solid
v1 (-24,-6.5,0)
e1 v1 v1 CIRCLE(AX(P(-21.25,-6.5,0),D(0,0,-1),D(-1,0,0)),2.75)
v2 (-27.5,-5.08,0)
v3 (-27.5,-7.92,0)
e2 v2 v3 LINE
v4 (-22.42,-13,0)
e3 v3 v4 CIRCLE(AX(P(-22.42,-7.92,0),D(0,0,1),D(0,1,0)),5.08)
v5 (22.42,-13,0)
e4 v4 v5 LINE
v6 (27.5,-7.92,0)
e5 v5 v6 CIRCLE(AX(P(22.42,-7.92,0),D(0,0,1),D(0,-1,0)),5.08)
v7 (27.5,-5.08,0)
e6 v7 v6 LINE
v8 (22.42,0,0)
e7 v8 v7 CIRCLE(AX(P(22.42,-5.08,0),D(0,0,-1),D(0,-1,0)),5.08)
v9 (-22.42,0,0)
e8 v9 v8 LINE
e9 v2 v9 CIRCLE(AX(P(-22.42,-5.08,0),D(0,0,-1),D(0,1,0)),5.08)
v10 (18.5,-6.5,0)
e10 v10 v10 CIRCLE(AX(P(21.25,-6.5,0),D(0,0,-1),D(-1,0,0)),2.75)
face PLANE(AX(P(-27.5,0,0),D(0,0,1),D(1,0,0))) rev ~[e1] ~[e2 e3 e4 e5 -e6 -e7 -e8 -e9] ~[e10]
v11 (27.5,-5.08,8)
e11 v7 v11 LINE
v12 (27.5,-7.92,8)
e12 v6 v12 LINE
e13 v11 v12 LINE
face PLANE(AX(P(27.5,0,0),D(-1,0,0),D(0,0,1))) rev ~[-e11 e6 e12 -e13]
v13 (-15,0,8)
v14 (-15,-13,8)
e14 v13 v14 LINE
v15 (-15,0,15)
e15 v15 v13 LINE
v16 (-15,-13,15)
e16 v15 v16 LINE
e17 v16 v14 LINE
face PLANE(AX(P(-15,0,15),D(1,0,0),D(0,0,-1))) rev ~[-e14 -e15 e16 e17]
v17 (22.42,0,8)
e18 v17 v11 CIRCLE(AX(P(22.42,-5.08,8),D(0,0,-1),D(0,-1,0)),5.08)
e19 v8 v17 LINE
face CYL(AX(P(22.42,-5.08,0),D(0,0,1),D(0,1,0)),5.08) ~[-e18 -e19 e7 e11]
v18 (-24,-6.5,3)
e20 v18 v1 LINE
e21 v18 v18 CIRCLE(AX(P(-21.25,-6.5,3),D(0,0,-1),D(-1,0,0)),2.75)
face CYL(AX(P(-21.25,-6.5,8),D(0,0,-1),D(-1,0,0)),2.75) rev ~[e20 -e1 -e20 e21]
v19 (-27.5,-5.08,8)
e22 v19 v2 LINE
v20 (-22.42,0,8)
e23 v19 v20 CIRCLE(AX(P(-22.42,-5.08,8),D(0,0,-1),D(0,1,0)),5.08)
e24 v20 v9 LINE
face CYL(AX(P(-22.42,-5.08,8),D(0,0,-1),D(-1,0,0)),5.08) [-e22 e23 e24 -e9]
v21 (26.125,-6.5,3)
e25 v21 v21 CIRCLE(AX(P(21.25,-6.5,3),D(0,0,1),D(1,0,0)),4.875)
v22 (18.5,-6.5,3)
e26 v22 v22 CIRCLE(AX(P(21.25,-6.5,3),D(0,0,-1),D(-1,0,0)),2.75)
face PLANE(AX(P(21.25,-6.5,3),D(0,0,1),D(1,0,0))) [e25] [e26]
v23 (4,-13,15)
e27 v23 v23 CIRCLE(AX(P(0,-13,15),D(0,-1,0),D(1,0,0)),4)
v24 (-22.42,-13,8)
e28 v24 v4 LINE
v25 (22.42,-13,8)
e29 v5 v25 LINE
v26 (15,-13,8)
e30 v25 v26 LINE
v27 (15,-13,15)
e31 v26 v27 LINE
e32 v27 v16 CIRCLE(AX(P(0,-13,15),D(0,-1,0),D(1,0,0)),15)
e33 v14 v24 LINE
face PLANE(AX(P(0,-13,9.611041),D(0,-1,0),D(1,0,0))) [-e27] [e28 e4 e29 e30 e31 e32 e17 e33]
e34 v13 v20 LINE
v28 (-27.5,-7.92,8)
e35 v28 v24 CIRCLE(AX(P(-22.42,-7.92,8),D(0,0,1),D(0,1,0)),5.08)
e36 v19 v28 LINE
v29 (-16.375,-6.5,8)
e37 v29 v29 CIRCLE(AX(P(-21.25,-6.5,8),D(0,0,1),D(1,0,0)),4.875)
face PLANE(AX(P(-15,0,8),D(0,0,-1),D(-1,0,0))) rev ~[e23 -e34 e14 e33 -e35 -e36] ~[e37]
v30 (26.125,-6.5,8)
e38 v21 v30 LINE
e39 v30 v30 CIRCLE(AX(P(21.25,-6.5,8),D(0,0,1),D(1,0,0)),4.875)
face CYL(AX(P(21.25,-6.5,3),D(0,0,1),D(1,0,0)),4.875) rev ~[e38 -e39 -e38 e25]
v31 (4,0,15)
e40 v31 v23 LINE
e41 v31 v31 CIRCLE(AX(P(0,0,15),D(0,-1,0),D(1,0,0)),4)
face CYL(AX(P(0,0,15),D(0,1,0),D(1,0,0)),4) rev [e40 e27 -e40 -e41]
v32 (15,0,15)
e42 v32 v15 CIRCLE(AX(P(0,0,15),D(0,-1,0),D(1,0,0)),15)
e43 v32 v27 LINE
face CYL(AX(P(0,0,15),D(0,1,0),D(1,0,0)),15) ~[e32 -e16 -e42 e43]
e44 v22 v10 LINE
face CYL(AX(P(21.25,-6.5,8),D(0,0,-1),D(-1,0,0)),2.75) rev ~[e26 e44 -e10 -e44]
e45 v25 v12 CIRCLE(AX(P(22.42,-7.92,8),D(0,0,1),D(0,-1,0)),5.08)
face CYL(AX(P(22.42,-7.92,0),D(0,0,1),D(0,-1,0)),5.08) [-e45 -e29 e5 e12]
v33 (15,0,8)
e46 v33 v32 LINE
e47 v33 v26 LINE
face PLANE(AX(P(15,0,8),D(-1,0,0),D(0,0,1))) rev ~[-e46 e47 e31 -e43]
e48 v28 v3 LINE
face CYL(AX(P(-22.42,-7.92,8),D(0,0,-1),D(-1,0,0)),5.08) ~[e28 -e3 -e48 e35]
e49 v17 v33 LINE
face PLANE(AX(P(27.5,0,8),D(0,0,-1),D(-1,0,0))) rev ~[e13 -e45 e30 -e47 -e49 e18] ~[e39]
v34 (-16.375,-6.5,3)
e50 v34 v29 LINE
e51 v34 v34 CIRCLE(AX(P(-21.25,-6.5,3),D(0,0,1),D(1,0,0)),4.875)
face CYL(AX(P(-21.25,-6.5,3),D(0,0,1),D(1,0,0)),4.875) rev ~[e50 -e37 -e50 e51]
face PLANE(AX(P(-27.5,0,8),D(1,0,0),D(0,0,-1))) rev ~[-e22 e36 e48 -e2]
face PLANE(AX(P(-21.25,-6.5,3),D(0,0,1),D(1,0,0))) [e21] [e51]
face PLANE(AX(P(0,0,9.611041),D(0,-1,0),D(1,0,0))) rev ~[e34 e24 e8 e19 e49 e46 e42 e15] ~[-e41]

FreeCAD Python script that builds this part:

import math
import FreeCAD as App
import Part
import Sketcher
from FreeCAD import Vector


def edges_at(feature, points):
    """Names of the edges that pass closest to the given points."""
    edges = feature.Shape.Edges
    near = lambda p: min(range(len(edges)), key=lambda i: edges[i].distToShape(Part.Vertex(*p))[0])
    return sorted({f"Edge{near(p) + 1}" for p in points})

doc = App.newDocument("Part")
body = doc.addObject("PartDesign::Body", "Body")

# Sketch on XZ plane
sketch1 = body.newObject("Sketcher::SketchObject", "Sketch")
sketch1.AttachmentSupport = (doc.getObject("XZ_Plane"), [""])
sketch1.MapMode = "FlatFace"
sketch1.addGeometry(Part.LineSegment(Vector(-27.5, 8, 0), Vector(-27.5, 0, 0)), False)
sketch1.addGeometry(Part.LineSegment(Vector(-27.5, 0, 0), Vector(27.5, 0, 0)), False)
sketch1.addGeometry(Part.LineSegment(Vector(27.5, 0, 0), Vector(27.5, 8, 0)), False)
sketch1.addGeometry(Part.LineSegment(Vector(27.5, 8, 0), Vector(15, 8, 0)), False)
sketch1.addGeometry(Part.LineSegment(Vector(15, 8, 0), Vector(15, 15, 0)), False)
sketch1.addGeometry(Part.ArcOfCircle(Part.Circle(Vector(0, 15, 0), Vector(0, 0, 1), 15), math.radians(0), math.radians(180)), False)
sketch1.addGeometry(Part.LineSegment(Vector(-15, 15, 0), Vector(-15, 8, 0)), False)
sketch1.addGeometry(Part.LineSegment(Vector(-15, 8, 0), Vector(-27.5, 8, 0)), False)
sketch1.addGeometry(Part.Circle(Vector(0, 15, 0), Vector(0, 0, 1), 4), False)
sketch1.addConstraint(Sketcher.Constraint("Coincident", 0, 2, 1, 1))
sketch1.addConstraint(Sketcher.Constraint("Coincident", 1, 2, 2, 1))
sketch1.addConstraint(Sketcher.Constraint("Coincident", 2, 2, 3, 1))
sketch1.addConstraint(Sketcher.Constraint("Coincident", 3, 2, 4, 1))
sketch1.addConstraint(Sketcher.Constraint("Tangent", 4, 2, 5, 1))
sketch1.addConstraint(Sketcher.Constraint("Tangent", 5, 2, 6, 1))
sketch1.addConstraint(Sketcher.Constraint("Coincident", 6, 2, 7, 1))
sketch1.addConstraint(Sketcher.Constraint("Coincident", 7, 2, 0, 1))
sketch1.addConstraint(Sketcher.Constraint("Vertical", 0))
sketch1.addConstraint(Sketcher.Constraint("Horizontal", 1))
sketch1.addConstraint(Sketcher.Constraint("Vertical", 2))
sketch1.addConstraint(Sketcher.Constraint("Horizontal", 3))
sketch1.addConstraint(Sketcher.Constraint("Vertical", 4))
sketch1.addConstraint(Sketcher.Constraint("Vertical", 6))
sketch1.addConstraint(Sketcher.Constraint("Horizontal", 7))
sketch1.addConstraint(Sketcher.Constraint("Coincident", 8, 3, 5, 3))
sketch1.addConstraint(Sketcher.Constraint("Symmetric", 0, 2, 1, 2, -1, 1))
sketch1.addConstraint(Sketcher.Constraint("Symmetric", 3, 2, 6, 2, -2))
sketch1.addConstraint(Sketcher.Constraint("Diameter", 8, 8.0))
sketch1.addConstraint(Sketcher.Constraint("Radius", 5, 15.0))
sketch1.addConstraint(Sketcher.Constraint("DistanceX", 1, 1, 1, 2, 55.0))
sketch1.addConstraint(Sketcher.Constraint("DistanceY", 0, 2, 0, 1, 8.0))
sketch1.addConstraint(Sketcher.Constraint("DistanceY", 4, 1, 4, 2, 7.0))
pad1 = body.newObject("PartDesign::Pad", "Pad")
pad1.Profile = sketch1
pad1.Length = 13

# Sketch on XY plane
sketch2 = body.newObject("Sketcher::SketchObject", "Sketch001")
sketch2.AttachmentSupport = (doc.getObject("XY_Plane"), [""])
sketch2.MapMode = "FlatFace"
sketch2.AttachmentOffset = App.Placement(Vector(0, 0, 8), App.Rotation())
sketch2.addGeometry(Part.Circle(Vector(-21.2, -6.5, 0), Vector(0, 0, 1), 2.8), False)
sketch2.addGeometry(Part.Circle(Vector(21.2, -6.5, 0), Vector(0, 0, 1), 2.8), False)
sketch2.addConstraint(Sketcher.Constraint("Equal", 0, 1))
sketch2.addConstraint(Sketcher.Constraint("Symmetric", 0, 3, 1, 3, -2))
sketch2.addConstraint(Sketcher.Constraint("Diameter", 0, 5.5))
sketch2.addConstraint(Sketcher.Constraint("DistanceY", 0, 3, -1, 1, 6.5))
sketch2.addConstraint(Sketcher.Constraint("DistanceX", 0, 3, 1, 3, 42.5))
doc.recompute()
hole = body.newObject("PartDesign::Hole", "Hole")
hole.Profile = sketch2
hole.ThreadType = "None"
hole.Diameter = 5.5
hole.DepthType = "ThroughAll"
hole.HoleCutType = "Counterbore"
hole.HoleCutDiameter = 9.75
hole.HoleCutDepth = 5
doc.recompute()

fillet = body.newObject("PartDesign::Fillet", "Fillet")
fillet.Base = (hole, edges_at(hole, [
    (27.5, -13, 4),
    (27.5, 0, 4),
    (-27.5, -13, 4),
    (-27.5, 0, 4),
]))
fillet.Radius = 5.08

doc.recompute()
